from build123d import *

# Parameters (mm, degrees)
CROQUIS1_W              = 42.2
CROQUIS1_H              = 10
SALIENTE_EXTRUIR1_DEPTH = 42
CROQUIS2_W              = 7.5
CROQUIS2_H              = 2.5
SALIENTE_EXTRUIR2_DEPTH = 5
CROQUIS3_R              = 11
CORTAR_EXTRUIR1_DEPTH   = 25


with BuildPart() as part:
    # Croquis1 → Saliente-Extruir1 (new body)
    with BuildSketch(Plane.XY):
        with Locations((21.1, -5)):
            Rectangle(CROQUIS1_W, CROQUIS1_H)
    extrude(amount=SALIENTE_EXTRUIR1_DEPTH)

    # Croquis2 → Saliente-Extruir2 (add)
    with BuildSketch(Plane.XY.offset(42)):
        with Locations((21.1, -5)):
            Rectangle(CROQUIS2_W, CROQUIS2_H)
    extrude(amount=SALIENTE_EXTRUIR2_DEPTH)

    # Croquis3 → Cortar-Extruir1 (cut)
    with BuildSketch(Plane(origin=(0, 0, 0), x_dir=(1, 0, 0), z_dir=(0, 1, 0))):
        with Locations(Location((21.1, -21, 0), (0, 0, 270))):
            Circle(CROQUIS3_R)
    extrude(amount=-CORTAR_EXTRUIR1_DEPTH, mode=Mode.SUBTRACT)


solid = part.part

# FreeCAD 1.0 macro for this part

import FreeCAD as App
import Part
import Sketcher

V = App.Vector
Q = App.Units.Quantity


def add_polygon(sketch, points):
    """Adds a closed chain of lines whose ends are joined by coincident constraints."""
    first, n = sketch.GeometryCount, len(points)
    for a, b in zip(points, points[1:] + points[:1]):
        sketch.addGeometry(Part.LineSegment(App.Vector(*a, 0), App.Vector(*b, 0)), False)
    for i in range(n):
        sketch.addConstraint(Sketcher.Constraint("Coincident", first + i, 2, first + (i + 1) % n, 1))

doc = App.newDocument("Part")
body = doc.addObject("PartDesign::Body", "Body")

sketch1 = body.newObject("Sketcher::SketchObject", "Sketch")
sketch1.AttachmentSupport = (doc.getObject("XY_Plane"), [""])
sketch1.MapMode = "FlatFace"
add_polygon(sketch1, [(0, 0), (0, -10), (42, -10), (42, 0)])
sketch1.addConstraint(Sketcher.Constraint("Vertical", 0))
sketch1.addConstraint(Sketcher.Constraint("Horizontal", 1))
sketch1.addConstraint(Sketcher.Constraint("Vertical", 2))
sketch1.addConstraint(Sketcher.Constraint("Horizontal", 3))
sketch1.addConstraint(Sketcher.Constraint("Coincident", 3, 2, -1, 1))
sketch1.addConstraint(Sketcher.Constraint("DistanceY", 0, 2, 0, 1, Q("10 mm")))
sketch1.addConstraint(Sketcher.Constraint("DistanceX", 1, 1, 1, 2, Q("42.2 mm")))
pad1 = body.newObject("PartDesign::Pad", "Pad")
pad1.Profile = sketch1
pad1.Length = 42

sketch2 = body.newObject("Sketcher::SketchObject", "Sketch001")
sketch2.AttachmentSupport = (doc.getObject("XY_Plane"), [""])
sketch2.MapMode = "FlatFace"
sketch2.AttachmentOffset = App.Placement(V(0, 0, 42), App.Rotation())
add_polygon(sketch2, [(17.4, -3.8), (17.4, -6.2), (24.9, -6.2), (24.9, -3.8)])
sketch2.addConstraint(Sketcher.Constraint("Vertical", 0))
sketch2.addConstraint(Sketcher.Constraint("Horizontal", 1))
sketch2.addConstraint(Sketcher.Constraint("Vertical", 2))
sketch2.addConstraint(Sketcher.Constraint("Horizontal", 3))
sketch2.addConstraint(Sketcher.Constraint("DistanceX", 1, 1, 1, 2, Q("7.5 mm")))
sketch2.addConstraint(Sketcher.Constraint("DistanceY", 0, 2, 0, 1, Q("2.5 mm")))
sketch2.addConstraint(Sketcher.Constraint("DistanceX", -1, 1, 0, 2, Q("17.35 mm")))
sketch2.addConstraint(Sketcher.Constraint("DistanceY", 0, 2, -1, 1, Q("6.25 mm")))
pad2 = body.newObject("PartDesign::Pad", "Pad001")
pad2.Profile = sketch2
pad2.Length = 5

sketch3 = body.newObject("Sketcher::SketchObject", "Sketch002")
sketch3.AttachmentSupport = (doc.getObject("XZ_Plane"), [""])
sketch3.MapMode = "FlatFace"
sketch3.addGeometry(Part.Circle(V(21, 21, 0), V(0, 0, 1), 11), False)
sketch3.addConstraint(Sketcher.Constraint("Diameter", 0, Q("22 mm")))
sketch3.addConstraint(Sketcher.Constraint("DistanceY", -1, 1, 0, 3, Q("21 mm")))
sketch3.addConstraint(Sketcher.Constraint("DistanceX", -1, 1, 0, 3, Q("21.1 mm")))
pocket1 = body.newObject("PartDesign::Pocket", "Pocket")
pocket1.Profile = sketch3
pocket1.Length = 25
pocket1.Reversed = True

doc.recompute()
